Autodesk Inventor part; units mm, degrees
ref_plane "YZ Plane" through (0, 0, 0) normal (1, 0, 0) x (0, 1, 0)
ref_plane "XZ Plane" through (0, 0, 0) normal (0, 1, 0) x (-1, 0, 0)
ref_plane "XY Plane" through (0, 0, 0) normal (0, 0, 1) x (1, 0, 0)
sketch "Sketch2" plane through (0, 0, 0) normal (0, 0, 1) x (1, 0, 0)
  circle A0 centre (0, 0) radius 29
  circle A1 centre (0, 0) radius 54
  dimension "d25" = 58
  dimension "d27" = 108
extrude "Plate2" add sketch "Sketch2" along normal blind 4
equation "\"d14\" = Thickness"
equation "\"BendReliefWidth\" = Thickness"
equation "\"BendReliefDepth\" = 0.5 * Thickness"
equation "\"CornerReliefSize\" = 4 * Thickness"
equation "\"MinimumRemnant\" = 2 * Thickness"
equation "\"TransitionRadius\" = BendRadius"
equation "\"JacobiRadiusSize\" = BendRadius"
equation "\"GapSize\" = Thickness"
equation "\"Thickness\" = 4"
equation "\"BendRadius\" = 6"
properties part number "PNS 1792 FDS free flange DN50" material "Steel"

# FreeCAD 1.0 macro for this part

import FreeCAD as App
import Part
import Sketcher
from FreeCAD import Vector

doc = App.newDocument("Part")
params = doc.addObject("Spreadsheet::Sheet", "Params")
for row, (alias, value) in enumerate([
    ("sketch1_diameter", "108 mm"),
    ("sketch1_diameter2", "58 mm"),
    ("pad1_length", "4 mm"),
], start=1):
    params.set(f"A{row}", alias)
    params.set(f"B{row}", "=" + value)
    params.setAlias(f"B{row}", alias)

body = doc.addObject("PartDesign::Body", "Body")

# Sketch on XY plane
sketch1 = doc.addObject("Sketcher::SketchObject", "Sketch")
body.addObject(sketch1)
sketch1.AttachmentSupport = (doc.XY_Plane, [""])
sketch1.MapMode = "FlatFace"
sketch1.addGeometry(Part.Circle(Vector(0, 0, 0), Vector(0, 0, 1), 54), False)
sketch1.addGeometry(Part.Circle(Vector(0, 0, 0), Vector(0, 0, 1), 29), False)
sketch1.addConstraint(Sketcher.Constraint("Coincident", 0, 3, -1, 1))
sketch1.addConstraint(Sketcher.Constraint("Coincident", 1, 3, -1, 1))
sketch1.addConstraint(Sketcher.Constraint("Diameter", 0, 108.0))
sketch1.addConstraint(Sketcher.Constraint("Diameter", 1, 58.0))
sketch1.setExpression("Constraints[2]", "Params.sketch1_diameter")
sketch1.setExpression("Constraints[3]", "Params.sketch1_diameter2")
pad1 = doc.addObject("PartDesign::Pad", "Pad")
body.addObject(pad1)
pad1.Profile = sketch1
pad1.setExpression("Length", "Params.pad1_length")

doc.recompute()
